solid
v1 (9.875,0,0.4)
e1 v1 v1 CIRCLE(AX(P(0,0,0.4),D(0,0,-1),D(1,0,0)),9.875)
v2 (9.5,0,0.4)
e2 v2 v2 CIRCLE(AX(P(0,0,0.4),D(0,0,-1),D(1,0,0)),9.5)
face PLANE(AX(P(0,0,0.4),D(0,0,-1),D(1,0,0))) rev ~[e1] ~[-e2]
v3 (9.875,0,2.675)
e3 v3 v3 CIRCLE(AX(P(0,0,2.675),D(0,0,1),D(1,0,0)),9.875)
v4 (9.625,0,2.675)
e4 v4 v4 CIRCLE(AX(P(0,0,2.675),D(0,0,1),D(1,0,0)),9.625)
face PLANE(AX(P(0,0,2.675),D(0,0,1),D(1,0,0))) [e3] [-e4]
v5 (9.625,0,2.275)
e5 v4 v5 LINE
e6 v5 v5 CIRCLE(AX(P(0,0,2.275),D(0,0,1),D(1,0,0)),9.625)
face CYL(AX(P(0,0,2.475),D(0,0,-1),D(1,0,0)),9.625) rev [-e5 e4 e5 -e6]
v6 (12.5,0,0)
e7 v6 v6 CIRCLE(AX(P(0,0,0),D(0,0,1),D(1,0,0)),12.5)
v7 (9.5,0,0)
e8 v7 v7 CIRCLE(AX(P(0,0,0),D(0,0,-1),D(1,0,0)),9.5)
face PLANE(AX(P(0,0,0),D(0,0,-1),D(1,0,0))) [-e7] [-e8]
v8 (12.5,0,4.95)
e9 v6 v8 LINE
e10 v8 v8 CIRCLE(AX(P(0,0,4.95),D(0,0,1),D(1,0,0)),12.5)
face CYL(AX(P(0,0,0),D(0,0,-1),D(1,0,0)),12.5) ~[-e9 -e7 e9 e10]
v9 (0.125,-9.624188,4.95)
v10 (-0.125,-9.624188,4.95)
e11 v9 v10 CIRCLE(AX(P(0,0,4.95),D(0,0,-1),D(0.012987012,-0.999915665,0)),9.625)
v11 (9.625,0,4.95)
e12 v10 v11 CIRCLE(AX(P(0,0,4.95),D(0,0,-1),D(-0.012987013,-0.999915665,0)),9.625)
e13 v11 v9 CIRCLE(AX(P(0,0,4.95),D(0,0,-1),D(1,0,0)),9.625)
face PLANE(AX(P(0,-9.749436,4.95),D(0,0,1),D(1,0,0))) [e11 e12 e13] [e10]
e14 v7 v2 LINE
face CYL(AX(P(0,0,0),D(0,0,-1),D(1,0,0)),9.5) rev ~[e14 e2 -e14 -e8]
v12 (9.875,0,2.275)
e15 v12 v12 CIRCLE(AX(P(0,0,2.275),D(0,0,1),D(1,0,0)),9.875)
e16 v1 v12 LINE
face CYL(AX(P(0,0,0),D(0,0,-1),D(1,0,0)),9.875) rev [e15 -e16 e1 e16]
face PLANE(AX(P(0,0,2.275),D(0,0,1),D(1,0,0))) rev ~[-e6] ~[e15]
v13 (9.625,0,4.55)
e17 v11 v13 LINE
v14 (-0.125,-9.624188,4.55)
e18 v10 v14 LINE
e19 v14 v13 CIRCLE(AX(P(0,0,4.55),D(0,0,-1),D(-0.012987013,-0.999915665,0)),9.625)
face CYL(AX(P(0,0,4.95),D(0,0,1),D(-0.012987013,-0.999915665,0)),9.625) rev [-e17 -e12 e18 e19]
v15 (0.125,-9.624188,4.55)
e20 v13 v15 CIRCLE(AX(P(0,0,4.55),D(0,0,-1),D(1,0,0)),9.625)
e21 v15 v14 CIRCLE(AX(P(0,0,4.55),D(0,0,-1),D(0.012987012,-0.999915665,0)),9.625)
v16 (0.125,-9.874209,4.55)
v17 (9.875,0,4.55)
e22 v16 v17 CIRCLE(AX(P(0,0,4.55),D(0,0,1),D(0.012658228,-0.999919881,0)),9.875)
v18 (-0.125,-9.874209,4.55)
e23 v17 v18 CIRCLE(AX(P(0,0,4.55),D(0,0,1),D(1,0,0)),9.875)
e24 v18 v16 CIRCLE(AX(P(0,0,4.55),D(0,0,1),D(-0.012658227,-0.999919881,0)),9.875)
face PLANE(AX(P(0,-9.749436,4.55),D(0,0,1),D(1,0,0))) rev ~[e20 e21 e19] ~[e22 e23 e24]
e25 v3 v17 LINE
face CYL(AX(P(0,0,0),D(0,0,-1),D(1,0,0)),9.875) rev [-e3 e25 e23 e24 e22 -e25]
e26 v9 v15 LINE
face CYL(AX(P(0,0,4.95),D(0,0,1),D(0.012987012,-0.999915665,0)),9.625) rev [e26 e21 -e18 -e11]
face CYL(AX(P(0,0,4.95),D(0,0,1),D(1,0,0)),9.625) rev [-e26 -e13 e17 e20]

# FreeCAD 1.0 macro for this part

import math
import FreeCAD as App
import Part
import Sketcher

V = App.Vector

doc = App.newDocument("Part")
body = doc.addObject("PartDesign::Body", "Body")

sketch1 = doc.addObject("Sketcher::SketchObject", "Sketch")
body.addObject(sketch1)
sketch1.AttachmentSupport = (doc.XY_Plane, [""])
sketch1.MapMode = "FlatFace"
sketch1.addGeometry([
    Part.Circle(V(0, 0, 0), V(0, 0, 1), 12),
    Part.Circle(V(0, 0, 0), V(0, 0, 1), 10),
], False)
sketch1.addConstraint([
    Sketcher.Constraint("Coincident", 0, 3, -1, 1),
    Sketcher.Constraint("Coincident", 1, 3, -1, 1),
    Sketcher.Constraint("Diameter", 0, 25.0),
    Sketcher.Constraint("Diameter", 1, 19.75),
])
pad1 = doc.addObject("PartDesign::Pad", "Pad")
body.addObject(pad1)
pad1.Profile = sketch1
pad1.Length = 4.95

sketch2 = doc.addObject("Sketcher::SketchObject", "Sketch001")
body.addObject(sketch2)
sketch2.AttachmentSupport = (doc.XY_Plane, [""])
sketch2.MapMode = "FlatFace"
sketch2.AttachmentOffset = App.Placement(V(0, 0, 2.475), App.Rotation())
sketch2.addGeometry([
    Part.Circle(V(0, 0, 0), V(0, 0, 1), 10),
    Part.Circle(V(0, 0, 0), V(0, 0, 1), 10),
], False)
sketch2.addConstraint([
    Sketcher.Constraint("Coincident", 0, 3, -1, 1),
    Sketcher.Constraint("Coincident", 1, 3, -1, 1),
    Sketcher.Constraint("Diameter", 0, 19.75),
    Sketcher.Constraint("Diameter", 1, 19.25),
])
pad2 = doc.addObject("PartDesign::Pad", "Pad001")
body.addObject(pad2)
pad2.Profile = sketch2
pad2.Length = 0.4
pad2.Midplane = True

sketch3 = doc.addObject("Sketcher::SketchObject", "Sketch002")
body.addObject(sketch3)
sketch3.AttachmentSupport = (doc.XY_Plane, [""])
sketch3.MapMode = "FlatFace"
sketch3.addGeometry([
    Part.Circle(V(0, 0, 0), V(0, 0, 1), 10),
    Part.Circle(V(0, 0, 0), V(0, 0, 1), 10),
], False)
sketch3.addConstraint([
    Sketcher.Constraint("Coincident", 0, 3, -1, 1),
    Sketcher.Constraint("Coincident", 1, 3, -1, 1),
    Sketcher.Constraint("Diameter", 1, 19.0),
    Sketcher.Constraint("Diameter", 0, 19.75),
])
pad3 = doc.addObject("PartDesign::Pad", "Pad002")
body.addObject(pad3)
pad3.Profile = sketch3
pad3.Length = 0.4

sketch4 = doc.addObject("Sketcher::SketchObject", "Sketch003")
body.addObject(sketch4)
sketch4.AttachmentSupport = (doc.XY_Plane, [""])
sketch4.MapMode = "FlatFace"
sketch4.AttachmentOffset = App.Placement(V(0, 0, 4.95), App.Rotation())
sketch4.addGeometry([
    Part.ArcOfCircle(Part.Circle(V(0, 0, 0), V(0, 0, 1), 9.88), math.radians(-90.73), math.radians(-89.27)),
    Part.ArcOfCircle(Part.Circle(V(0, 0, 0), V(0, 0, 1), 9.88), math.radians(-89), math.radians(0)),
    Part.ArcOfCircle(Part.Circle(V(0, 0, 0), V(0, 0, 1), 9.88), math.radians(0), math.radians(269)),
    Part.ArcOfCircle(Part.Circle(V(0, 0, 0), V(0, 0, 1), 9.63), math.radians(-90.74), math.radians(-89.26)),
    Part.ArcOfCircle(Part.Circle(V(0, 0, 0), V(0, 0, 1), 9.62), math.radians(0), math.radians(269)),
    Part.ArcOfCircle(Part.Circle(V(0, 0, 0), V(0, 0, 1), 9.62), math.radians(-89), math.radians(0)),
], False)
sketch4.addConstraint([
    Sketcher.Constraint("Tangent", 0, 2, 1, 1),
    Sketcher.Constraint("Tangent", 1, 2, 2, 1),
    Sketcher.Constraint("Coincident", 2, 2, 0, 1),
    Sketcher.Constraint("Tangent", 3, 1, 4, 2),
    Sketcher.Constraint("Tangent", 4, 1, 5, 2),
    Sketcher.Constraint("Coincident", 5, 1, 3, 2),
    Sketcher.Constraint("Coincident", 0, 3, -1, 1),
    Sketcher.Constraint("Coincident", 3, 3, -1, 1),
    Sketcher.Constraint("Equal", 0, 1),
    Sketcher.Constraint("Equal", 3, 4),
    Sketcher.Constraint("PointOnObject", 1, 2, -1),
    Sketcher.Constraint("PointOnObject", 4, 1, -1),
    Sketcher.Constraint("Horizontal", 0, 2, 2, 2),
    Sketcher.Constraint("Horizontal", 3, 1, 5, 1),
    Sketcher.Constraint("Vertical", 2, 2, 3, 1),
    Sketcher.Constraint("Radius", 0, 9.875),
    Sketcher.Constraint("Radius", 3, 9.625),
    Sketcher.Constraint("DistanceX", 2, 2, 0, 2, 0.25),
])
pad4 = doc.addObject("PartDesign::Pad", "Pad003")
body.addObject(pad4)
pad4.Profile = sketch4
pad4.Length = 0.4
pad4.Reversed = True

doc.recompute()
